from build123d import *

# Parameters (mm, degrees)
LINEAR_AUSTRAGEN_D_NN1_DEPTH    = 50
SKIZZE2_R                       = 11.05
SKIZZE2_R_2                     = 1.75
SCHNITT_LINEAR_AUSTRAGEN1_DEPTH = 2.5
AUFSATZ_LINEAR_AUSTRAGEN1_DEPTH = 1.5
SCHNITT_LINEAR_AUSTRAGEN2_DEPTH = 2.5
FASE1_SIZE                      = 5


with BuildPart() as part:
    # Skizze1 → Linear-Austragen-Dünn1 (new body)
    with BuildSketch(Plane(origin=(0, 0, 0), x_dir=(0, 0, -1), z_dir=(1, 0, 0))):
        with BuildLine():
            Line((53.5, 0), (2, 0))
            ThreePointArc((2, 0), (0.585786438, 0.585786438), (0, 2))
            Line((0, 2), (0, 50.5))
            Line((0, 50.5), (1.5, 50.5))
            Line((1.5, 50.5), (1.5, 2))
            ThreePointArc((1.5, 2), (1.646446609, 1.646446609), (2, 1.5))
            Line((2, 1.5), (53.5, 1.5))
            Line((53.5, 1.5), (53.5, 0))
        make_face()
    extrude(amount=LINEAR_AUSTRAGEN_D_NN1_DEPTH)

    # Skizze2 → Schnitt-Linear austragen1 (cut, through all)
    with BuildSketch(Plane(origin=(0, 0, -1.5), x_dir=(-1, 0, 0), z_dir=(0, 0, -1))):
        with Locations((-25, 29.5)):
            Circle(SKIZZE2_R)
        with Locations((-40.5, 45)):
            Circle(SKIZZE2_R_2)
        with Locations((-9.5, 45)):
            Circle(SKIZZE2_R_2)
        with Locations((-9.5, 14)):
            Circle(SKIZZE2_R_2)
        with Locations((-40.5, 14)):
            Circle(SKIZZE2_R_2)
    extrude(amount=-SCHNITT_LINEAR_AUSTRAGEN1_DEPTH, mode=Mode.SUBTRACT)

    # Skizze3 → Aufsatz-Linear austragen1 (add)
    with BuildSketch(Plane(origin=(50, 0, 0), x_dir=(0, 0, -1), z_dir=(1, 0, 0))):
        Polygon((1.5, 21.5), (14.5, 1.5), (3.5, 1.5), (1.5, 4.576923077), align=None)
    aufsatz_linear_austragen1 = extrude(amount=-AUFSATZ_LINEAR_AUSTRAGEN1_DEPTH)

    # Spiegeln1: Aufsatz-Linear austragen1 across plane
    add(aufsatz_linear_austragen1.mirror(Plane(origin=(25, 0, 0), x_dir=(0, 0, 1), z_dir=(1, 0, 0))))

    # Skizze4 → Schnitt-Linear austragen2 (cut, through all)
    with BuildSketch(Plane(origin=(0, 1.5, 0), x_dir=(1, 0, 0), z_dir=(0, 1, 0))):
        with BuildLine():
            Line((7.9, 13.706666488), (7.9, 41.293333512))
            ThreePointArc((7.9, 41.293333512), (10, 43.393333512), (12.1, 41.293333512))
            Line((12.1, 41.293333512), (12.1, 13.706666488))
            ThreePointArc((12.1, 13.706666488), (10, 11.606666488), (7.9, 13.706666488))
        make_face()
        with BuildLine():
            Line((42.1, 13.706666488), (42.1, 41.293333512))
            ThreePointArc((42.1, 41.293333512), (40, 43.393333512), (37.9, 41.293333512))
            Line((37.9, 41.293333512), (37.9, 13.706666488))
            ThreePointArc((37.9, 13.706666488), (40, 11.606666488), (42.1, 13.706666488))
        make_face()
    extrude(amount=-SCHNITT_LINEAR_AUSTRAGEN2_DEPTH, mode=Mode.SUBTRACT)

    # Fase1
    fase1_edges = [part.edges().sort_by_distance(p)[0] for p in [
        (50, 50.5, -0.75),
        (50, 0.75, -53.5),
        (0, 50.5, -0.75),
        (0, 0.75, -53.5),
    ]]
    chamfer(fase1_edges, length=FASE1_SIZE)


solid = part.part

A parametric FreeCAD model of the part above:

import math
import FreeCAD as App
import Part
import Sketcher
from FreeCAD import Vector


def edges_at(feature, points):
    """Names of the edges that pass closest to the given points."""
    edges = feature.Shape.Edges
    near = lambda p: min(range(len(edges)), key=lambda i: edges[i].distToShape(Part.Vertex(*p))[0])
    return sorted({f"Edge{near(p) + 1}" for p in points})

doc = App.newDocument("Part")
body = doc.addObject("PartDesign::Body", "Body")

sketch1 = body.newObject("Sketcher::SketchObject", "Sketch")
sketch1.AttachmentSupport = (doc.getObject("YZ_Plane"), [""])
sketch1.MapMode = "FlatFace"
sketch1.addGeometry(Part.LineSegment(Vector(0, -2, 0), Vector(0, -53.5, 0)), False)
sketch1.addGeometry(Part.LineSegment(Vector(0, -53.5, 0), Vector(1.5, -53.5, 0)), False)
sketch1.addGeometry(Part.LineSegment(Vector(1.5, -53.5, 0), Vector(1.5, -2, 0)), False)
sketch1.addGeometry(Part.ArcOfCircle(Part.Circle(Vector(2, -2, 0), Vector(0, 0, 1), 0.5), math.radians(90), math.radians(180)), False)
sketch1.addGeometry(Part.LineSegment(Vector(2, -1.5, 0), Vector(50.5, -1.5, 0)), False)
sketch1.addGeometry(Part.LineSegment(Vector(50.5, -1.5, 0), Vector(50.5, 0, 0)), False)
sketch1.addGeometry(Part.LineSegment(Vector(50.5, 0, 0), Vector(2, 0, 0)), False)
sketch1.addGeometry(Part.ArcOfCircle(Part.Circle(Vector(2, -2, 0), Vector(0, 0, 1), 2), math.radians(90), math.radians(180)), False)
sketch1.addConstraint(Sketcher.Constraint("Coincident", 0, 2, 1, 1))
sketch1.addConstraint(Sketcher.Constraint("Coincident", 1, 2, 2, 1))
sketch1.addConstraint(Sketcher.Constraint("Tangent", 2, 2, 3, 2))
sketch1.addConstraint(Sketcher.Constraint("Tangent", 3, 1, 4, 1))
sketch1.addConstraint(Sketcher.Constraint("Coincident", 4, 2, 5, 1))
sketch1.addConstraint(Sketcher.Constraint("Coincident", 5, 2, 6, 1))
sketch1.addConstraint(Sketcher.Constraint("Tangent", 6, 2, 7, 1))
sketch1.addConstraint(Sketcher.Constraint("Tangent", 7, 2, 0, 1))
sketch1.addConstraint(Sketcher.Constraint("Vertical", 0))
sketch1.addConstraint(Sketcher.Constraint("Horizontal", 1))
sketch1.addConstraint(Sketcher.Constraint("Vertical", 2))
sketch1.addConstraint(Sketcher.Constraint("Horizontal", 4))
sketch1.addConstraint(Sketcher.Constraint("Vertical", 5))
sketch1.addConstraint(Sketcher.Constraint("Horizontal", 6))
sketch1.addConstraint(Sketcher.Constraint("Coincident", 7, 3, 3, 3))
sketch1.addConstraint(Sketcher.Constraint("PointOnObject", 0, 2, -2))
sketch1.addConstraint(Sketcher.Constraint("PointOnObject", 5, 2, -1))
sketch1.addConstraint(Sketcher.Constraint("Radius", 7, 2.0))
sketch1.addConstraint(Sketcher.Constraint("Radius", 3, 0.5))
sketch1.addConstraint(Sketcher.Constraint("DistanceX", 4, 1, 4, 2, 48.5))
sketch1.addConstraint(Sketcher.Constraint("DistanceY", 0, 2, 0, 1, 51.5))
pad1 = body.newObject("PartDesign::Pad", "Pad")
pad1.Profile = sketch1
pad1.Length = 50

sketch2 = body.newObject("Sketcher::SketchObject", "Sketch001")
sketch2.AttachmentSupport = (doc.getObject("XY_Plane"), [""])
sketch2.MapMode = "FlatFace"
sketch2.AttachmentOffset = App.Placement(Vector(0, 0, -1.5), App.Rotation())
sketch2.addGeometry(Part.Circle(Vector(25, 29.5, 0), Vector(0, 0, 1), 11.1), False)
sketch2.addGeometry(Part.Circle(Vector(40.5, 45, 0), Vector(0, 0, 1), 1.8), False)
sketch2.addGeometry(Part.Circle(Vector(9.5, 45, 0), Vector(0, 0, 1), 1.8), False)
sketch2.addGeometry(Part.Circle(Vector(9.5, 14, 0), Vector(0, 0, 1), 1.8), False)
sketch2.addGeometry(Part.Circle(Vector(40.5, 14, 0), Vector(0, 0, 1), 1.8), False)
sketch2.addConstraint(Sketcher.Constraint("Equal", 1, 2))
sketch2.addConstraint(Sketcher.Constraint("Equal", 2, 3))
sketch2.addConstraint(Sketcher.Constraint("Equal", 3, 4))
sketch2.addConstraint(Sketcher.Constraint("Horizontal", 1, 3, 2, 3))
sketch2.addConstraint(Sketcher.Constraint("Horizontal", 3, 3, 4, 3))
sketch2.addConstraint(Sketcher.Constraint("Vertical", 2, 3, 3, 3))
sketch2.addConstraint(Sketcher.Constraint("Vertical", 1, 3, 4, 3))
sketch2.addConstraint(Sketcher.Constraint("Diameter", 0, 22.1))
sketch2.addConstraint(Sketcher.Constraint("Diameter", 1, 3.5))
sketch2.addConstraint(Sketcher.Constraint("DistanceX", -1, 1, 0, 3, 25.0))
sketch2.addConstraint(Sketcher.Constraint("DistanceY", -1, 1, 1, 3, 45.0))
sketch2.addConstraint(Sketcher.Constraint("DistanceY", -1, 1, 3, 3, 14.0))
sketch2.addConstraint(Sketcher.Constraint("DistanceX", 2, 3, 1, 3, 31.0))
sketch2.addConstraint(Sketcher.Constraint("DistanceY", -1, 1, 0, 3, 29.5))
sketch2.addConstraint(Sketcher.Constraint("DistanceX", -1, 1, 1, 3, 40.5))
pocket1 = body.newObject("PartDesign::Pocket", "Pocket")
pocket1.Profile = sketch2
pocket1.Type = "ThroughAll"
pocket1.Reversed = True

sketch3 = body.newObject("Sketcher::SketchObject", "Sketch002")
sketch3.AttachmentSupport = (doc.getObject("YZ_Plane"), [""])
sketch3.MapMode = "FlatFace"
sketch3.AttachmentOffset = App.Placement(Vector(0, 0, 50), App.Rotation())
sketch3.addGeometry(Part.LineSegment(Vector(1.5, -14.5, 0), Vector(21.5, -1.5, 0)), False)
sketch3.addGeometry(Part.LineSegment(Vector(21.5, -1.5, 0), Vector(4.6, -1.5, 0)), False)
sketch3.addGeometry(Part.LineSegment(Vector(4.6, -1.5, 0), Vector(1.5, -3.5, 0)), False)
sketch3.addGeometry(Part.LineSegment(Vector(1.5, -3.5, 0), Vector(1.5, -14.5, 0)), False)
sketch3.addConstraint(Sketcher.Constraint("Coincident", 0, 2, 1, 1))
sketch3.addConstraint(Sketcher.Constraint("Coincident", 1, 2, 2, 1))
sketch3.addConstraint(Sketcher.Constraint("Coincident", 2, 2, 3, 1))
sketch3.addConstraint(Sketcher.Constraint("Coincident", 3, 2, 0, 1))
sketch3.addConstraint(Sketcher.Constraint("Horizontal", 1))
sketch3.addConstraint(Sketcher.Constraint("Vertical", 3))
sketch3.addConstraint(Sketcher.Constraint("Parallel", 0, 2))
sketch3.addConstraint(Sketcher.Constraint("DistanceY", 3, 2, 3, 1, 11.0))
sketch3.addConstraint(Sketcher.Constraint("DistanceY", 2, 2, 1, 2, 2.0))
sketch3.addConstraint(Sketcher.Constraint("DistanceX", 2, 2, 0, 2, 20.0))
sketch3.addConstraint(Sketcher.Constraint("DistanceX", -1, 1, 0, 2, 21.5))
sketch3.addConstraint(Sketcher.Constraint("DistanceY", 0, 2, -1, 1, 1.5))
pad2 = body.newObject("PartDesign::Pad", "Pad001")
pad2.Profile = sketch3
pad2.Length = 1.5
pad2.Reversed = True
doc.recompute()

datumplane = body.newObject("PartDesign::Plane", "DatumPlane")
datumplane.AttachmentSupport = (doc.getObject("YZ_Plane"), [""])
datumplane.MapMode = "FlatFace"
datumplane.AttachmentOffset = App.Placement(Vector(0, 0, 25), App.Rotation())
mirrored = body.newObject("PartDesign::Mirrored", "Mirrored")
mirrored.Originals = [pad2]
mirrored.MirrorPlane = (datumplane, [""])
body.Tip = mirrored

sketch4 = body.newObject("Sketcher::SketchObject", "Sketch003")
sketch4.AttachmentSupport = (doc.getObject("XZ_Plane"), [""])
sketch4.MapMode = "FlatFace"
sketch4.AttachmentOffset = App.Placement(Vector(0, 0, -1.5), App.Rotation())
sketch4.addGeometry(Part.LineSegment(Vector(7.9, -41.3, 0), Vector(7.9, -13.7, 0)), False)
sketch4.addGeometry(Part.ArcOfCircle(Part.Circle(Vector(10, -13.7, 0), Vector(0, 0, 1), 2.1), math.radians(0), math.radians(180)), False)
sketch4.addGeometry(Part.LineSegment(Vector(12.1, -13.7, 0), Vector(12.1, -41.3, 0)), False)
sketch4.addGeometry(Part.ArcOfCircle(Part.Circle(Vector(10, -41.3, 0), Vector(0, 0, 1), 2.1), math.radians(180), math.radians(360)), False)
sketch4.addGeometry(Part.LineSegment(Vector(42.1, -13.7, 0), Vector(42.1, -41.3, 0)), False)
sketch4.addGeometry(Part.ArcOfCircle(Part.Circle(Vector(40, -41.3, 0), Vector(0, 0, 1), 2.1), math.radians(180), math.radians(360)), False)
sketch4.addGeometry(Part.LineSegment(Vector(37.9, -41.3, 0), Vector(37.9, -13.7, 0)), False)
sketch4.addGeometry(Part.ArcOfCircle(Part.Circle(Vector(40, -13.7, 0), Vector(0, 0, 1), 2.1), math.radians(0), math.radians(180)), False)
sketch4.addConstraint(Sketcher.Constraint("Tangent", 0, 2, 1, 2))
sketch4.addConstraint(Sketcher.Constraint("Tangent", 1, 1, 2, 1))
sketch4.addConstraint(Sketcher.Constraint("Tangent", 2, 2, 3, 2))
sketch4.addConstraint(Sketcher.Constraint("Tangent", 3, 1, 0, 1))
sketch4.addConstraint(Sketcher.Constraint("Tangent", 4, 2, 5, 2))
sketch4.addConstraint(Sketcher.Constraint("Tangent", 5, 1, 6, 1))
sketch4.addConstraint(Sketcher.Constraint("Tangent", 6, 2, 7, 2))
sketch4.addConstraint(Sketcher.Constraint("Tangent", 7, 1, 4, 1))
sketch4.addConstraint(Sketcher.Constraint("Vertical", 0))
sketch4.addConstraint(Sketcher.Constraint("Vertical", 2))
sketch4.addConstraint(Sketcher.Constraint("Vertical", 4))
sketch4.addConstraint(Sketcher.Constraint("Vertical", 6))
sketch4.addConstraint(Sketcher.Constraint("Equal", 3, 5))
sketch4.addConstraint(Sketcher.Constraint("Horizontal", 3, 3, 5, 3))
sketch4.addConstraint(Sketcher.Constraint("Horizontal", 1, 3, 7, 3))
sketch4.addConstraint(Sketcher.Constraint("Radius", 1, 2.1))
sketch4.addConstraint(Sketcher.Constraint("DistanceX", -1, 1, 1, 3, 10.0))
sketch4.addConstraint(Sketcher.Constraint("DistanceX", -1, 1, 5, 3, 40.0))
sketch4.addConstraint(Sketcher.Constraint("DistanceY", 0, 1, 0, 2, 27.586667))
sketch4.addConstraint(Sketcher.Constraint("DistanceY", 1, 3, -1, 1, 13.706666))
pocket2 = body.newObject("PartDesign::Pocket", "Pocket001")
pocket2.Profile = sketch4
pocket2.Type = "ThroughAll"
pocket2.Reversed = True
doc.recompute()

chamfer = body.newObject("PartDesign::Chamfer", "Chamfer")
chamfer.Base = (pocket2, edges_at(pocket2, [
    (50, 50.5, -0.75),
    (50, 0.75, -53.5),
    (0, 50.5, -0.75),
    (0, 0.75, -53.5),
]))
chamfer.Size = 5

doc.recompute()
